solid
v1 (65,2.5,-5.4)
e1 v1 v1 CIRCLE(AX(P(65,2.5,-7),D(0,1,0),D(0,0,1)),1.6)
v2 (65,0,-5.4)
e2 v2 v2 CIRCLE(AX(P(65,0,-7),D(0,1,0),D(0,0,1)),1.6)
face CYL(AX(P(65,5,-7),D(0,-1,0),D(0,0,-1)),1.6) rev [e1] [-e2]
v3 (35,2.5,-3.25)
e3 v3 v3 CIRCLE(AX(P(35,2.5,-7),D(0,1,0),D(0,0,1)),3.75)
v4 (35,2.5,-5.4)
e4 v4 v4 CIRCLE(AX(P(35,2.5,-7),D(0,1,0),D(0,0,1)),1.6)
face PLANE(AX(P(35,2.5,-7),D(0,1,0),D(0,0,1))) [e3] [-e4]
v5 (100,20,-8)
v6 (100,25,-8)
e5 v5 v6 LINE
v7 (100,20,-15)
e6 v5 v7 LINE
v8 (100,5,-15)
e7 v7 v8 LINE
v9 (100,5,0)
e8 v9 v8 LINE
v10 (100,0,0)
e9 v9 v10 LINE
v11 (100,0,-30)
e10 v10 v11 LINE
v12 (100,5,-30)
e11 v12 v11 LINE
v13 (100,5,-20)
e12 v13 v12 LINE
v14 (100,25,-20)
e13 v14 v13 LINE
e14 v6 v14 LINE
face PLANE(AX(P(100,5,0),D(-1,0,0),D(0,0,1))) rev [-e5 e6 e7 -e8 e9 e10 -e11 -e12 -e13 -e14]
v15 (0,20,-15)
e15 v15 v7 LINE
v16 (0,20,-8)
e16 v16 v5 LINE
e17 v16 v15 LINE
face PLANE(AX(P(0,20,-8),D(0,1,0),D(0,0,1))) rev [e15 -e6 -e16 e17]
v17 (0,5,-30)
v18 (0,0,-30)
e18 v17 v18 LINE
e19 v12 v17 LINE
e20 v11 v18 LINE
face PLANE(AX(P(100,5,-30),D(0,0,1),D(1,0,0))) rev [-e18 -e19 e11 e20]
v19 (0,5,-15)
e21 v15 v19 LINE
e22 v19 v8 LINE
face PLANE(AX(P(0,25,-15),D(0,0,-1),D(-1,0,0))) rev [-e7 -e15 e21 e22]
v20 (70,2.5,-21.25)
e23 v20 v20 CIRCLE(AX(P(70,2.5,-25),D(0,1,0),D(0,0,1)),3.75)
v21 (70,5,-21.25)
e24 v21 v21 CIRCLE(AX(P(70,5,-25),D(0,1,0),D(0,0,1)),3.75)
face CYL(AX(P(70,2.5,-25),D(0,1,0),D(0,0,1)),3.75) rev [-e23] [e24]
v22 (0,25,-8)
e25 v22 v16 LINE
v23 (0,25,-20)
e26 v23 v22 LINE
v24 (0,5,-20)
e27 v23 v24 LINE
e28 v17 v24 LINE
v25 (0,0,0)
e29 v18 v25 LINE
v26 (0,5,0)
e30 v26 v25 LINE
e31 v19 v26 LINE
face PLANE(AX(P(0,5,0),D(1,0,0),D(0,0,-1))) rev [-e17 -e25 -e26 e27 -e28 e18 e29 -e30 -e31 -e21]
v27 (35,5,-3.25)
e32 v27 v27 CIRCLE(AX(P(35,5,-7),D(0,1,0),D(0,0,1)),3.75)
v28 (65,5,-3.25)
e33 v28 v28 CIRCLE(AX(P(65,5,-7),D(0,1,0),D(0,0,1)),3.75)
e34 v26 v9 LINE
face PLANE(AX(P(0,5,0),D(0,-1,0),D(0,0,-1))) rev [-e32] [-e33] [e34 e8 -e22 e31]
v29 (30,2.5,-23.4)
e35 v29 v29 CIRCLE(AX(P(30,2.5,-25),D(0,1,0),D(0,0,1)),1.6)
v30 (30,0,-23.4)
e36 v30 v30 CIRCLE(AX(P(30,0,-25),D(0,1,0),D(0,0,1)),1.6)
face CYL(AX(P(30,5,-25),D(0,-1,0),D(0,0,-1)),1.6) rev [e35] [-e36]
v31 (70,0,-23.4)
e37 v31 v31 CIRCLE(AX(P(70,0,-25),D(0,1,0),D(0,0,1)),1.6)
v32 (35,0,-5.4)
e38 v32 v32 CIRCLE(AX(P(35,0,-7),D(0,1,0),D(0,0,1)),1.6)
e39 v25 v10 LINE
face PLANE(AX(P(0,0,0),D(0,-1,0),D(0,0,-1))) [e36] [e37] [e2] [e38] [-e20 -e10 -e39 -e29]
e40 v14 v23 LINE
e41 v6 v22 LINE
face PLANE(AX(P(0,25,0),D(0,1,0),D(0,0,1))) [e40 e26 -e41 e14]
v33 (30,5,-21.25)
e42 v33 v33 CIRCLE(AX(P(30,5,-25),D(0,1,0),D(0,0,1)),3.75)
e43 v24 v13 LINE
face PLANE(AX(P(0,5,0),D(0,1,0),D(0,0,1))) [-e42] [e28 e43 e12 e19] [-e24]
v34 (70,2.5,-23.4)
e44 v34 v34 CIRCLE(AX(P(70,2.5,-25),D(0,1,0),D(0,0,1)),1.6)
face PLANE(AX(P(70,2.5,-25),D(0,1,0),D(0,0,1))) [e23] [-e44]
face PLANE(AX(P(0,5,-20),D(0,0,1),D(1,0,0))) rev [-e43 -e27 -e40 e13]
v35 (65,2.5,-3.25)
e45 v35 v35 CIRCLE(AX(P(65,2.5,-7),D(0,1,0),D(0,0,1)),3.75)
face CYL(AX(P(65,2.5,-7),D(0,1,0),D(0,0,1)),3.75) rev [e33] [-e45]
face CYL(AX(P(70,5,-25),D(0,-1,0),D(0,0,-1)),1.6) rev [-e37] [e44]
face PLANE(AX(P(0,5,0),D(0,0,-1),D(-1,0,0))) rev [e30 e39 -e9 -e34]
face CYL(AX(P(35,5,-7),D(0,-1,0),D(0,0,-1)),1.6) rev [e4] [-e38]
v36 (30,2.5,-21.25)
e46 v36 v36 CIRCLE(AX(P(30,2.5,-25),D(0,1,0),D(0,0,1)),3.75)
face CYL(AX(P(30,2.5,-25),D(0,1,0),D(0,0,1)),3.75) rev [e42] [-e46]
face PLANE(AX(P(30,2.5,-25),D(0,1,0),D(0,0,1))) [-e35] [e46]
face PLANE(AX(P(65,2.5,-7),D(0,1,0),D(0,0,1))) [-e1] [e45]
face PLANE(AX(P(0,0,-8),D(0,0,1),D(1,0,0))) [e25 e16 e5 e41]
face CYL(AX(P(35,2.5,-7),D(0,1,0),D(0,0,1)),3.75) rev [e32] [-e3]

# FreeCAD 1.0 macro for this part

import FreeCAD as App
import Part
import Sketcher

V = App.Vector

doc = App.newDocument("Part")
params = doc.addObject("Spreadsheet::Sheet", "Params")
for row, (alias, value) in enumerate([
    ("sketch1_diameter", "3.2 mm"),
    ("sketch1_width", "100 mm"),
    ("sketch1_height", "20 mm"),
    ("pad1_length", "5 mm"),
    ("sketch2_width", "100 mm"),
    ("sketch2_height", "5 mm"),
    ("pad2_length", "20 mm"),
    ("sketch3_width", "100 mm"),
    ("sketch3_height", "5 mm"),
    ("pad3_length", "7 mm"),
    ("sketch4_diameter", "3.2 mm"),
    ("sketch4_width", "100 mm"),
    ("sketch4_height", "10 mm"),
    ("pad4_length", "5 mm"),
    ("sketch5_diameter", "7.5 mm"),
    ("pocket1_length", "2.5 mm"),
], start=1):
    params.set(f"A{row}", alias)
    params.set(f"B{row}", "=" + value)
    params.setAlias(f"B{row}", alias)

body = doc.addObject("PartDesign::Body", "Body")

# Sketch on XZ plane
sketch1 = body.newObject("Sketcher::SketchObject", "Sketch")
sketch1.AttachmentSupport = (doc.getObject("XZ_Plane"), [""])
sketch1.MapMode = "FlatFace"
sketch1.addGeometry([
    Part.LineSegment(V(0, -20, 0), V(0, 0, 0)),  # 0
    Part.LineSegment(V(0, 0, 0), V(100, 0, 0)),  # 1
    Part.LineSegment(V(100, 0, 0), V(100, -20, 0)),  # 2
    Part.LineSegment(V(100, -20, 0), V(0, -20, 0)),  # 3
    Part.Circle(V(35, -7, 0), V(0, 0, 1), 1.6),  # 4
    Part.Circle(V(65, -7, 0), V(0, 0, 1), 1.6),  # 5
], False)
sketch1.addConstraint([
    Sketcher.Constraint("Coincident", 0, 2, 1, 1),
    Sketcher.Constraint("Coincident", 1, 2, 2, 1),
    Sketcher.Constraint("Coincident", 2, 2, 3, 1),
    Sketcher.Constraint("Coincident", 3, 2, 0, 1),
    Sketcher.Constraint("Vertical", 0),
    Sketcher.Constraint("Horizontal", 1),
    Sketcher.Constraint("Vertical", 2),
    Sketcher.Constraint("Horizontal", 3),
    Sketcher.Constraint("Coincident", 0, 2, -1, 1),
    Sketcher.Constraint("Equal", 4, 5),
    Sketcher.Constraint("Horizontal", 4, 3, 5, 3),
    Sketcher.Constraint("Diameter", 4, 3.2),
    Sketcher.Constraint("DistanceX", 1, 1, 1, 2, 100.0),
    Sketcher.Constraint("DistanceY", 0, 1, 0, 2, 20.0),
    Sketcher.Constraint("DistanceX", -1, 1, 4, 3, 35.0),
    Sketcher.Constraint("DistanceY", 4, 3, -1, 1, 7.0),
    Sketcher.Constraint("DistanceX", -1, 1, 5, 3, 65.0),
])
sketch1.setExpression("Constraints[11]", "Params.sketch1_diameter")
sketch1.setExpression("Constraints[12]", "Params.sketch1_width")
sketch1.setExpression("Constraints[13]", "Params.sketch1_height")
pad1 = body.newObject("PartDesign::Pad", "Pad")
pad1.Profile = sketch1
pad1.setExpression("Length", "Params.pad1_length")
pad1.Reversed = True

# Sketch on XZ plane
sketch2 = body.newObject("Sketcher::SketchObject", "Sketch001")
sketch2.AttachmentSupport = (doc.getObject("XZ_Plane"), [""])
sketch2.MapMode = "FlatFace"
sketch2.AttachmentOffset = App.Placement(V(0, 0, -5), App.Rotation())
sketch2.addGeometry([
    Part.LineSegment(V(0, -20, 0), V(0, -15, 0)),
    Part.LineSegment(V(0, -15, 0), V(100, -15, 0)),
    Part.LineSegment(V(100, -15, 0), V(100, -20, 0)),
    Part.LineSegment(V(100, -20, 0), V(0, -20, 0)),
], False)
sketch2.addConstraint([
    Sketcher.Constraint("Coincident", 0, 2, 1, 1),
    Sketcher.Constraint("Coincident", 1, 2, 2, 1),
    Sketcher.Constraint("Coincident", 2, 2, 3, 1),
    Sketcher.Constraint("Coincident", 3, 2, 0, 1),
    Sketcher.Constraint("Vertical", 0),
    Sketcher.Constraint("Horizontal", 1),
    Sketcher.Constraint("Vertical", 2),
    Sketcher.Constraint("Horizontal", 3),
    Sketcher.Constraint("PointOnObject", 0, 2, -2),
    Sketcher.Constraint("DistanceX", 1, 1, 1, 2, 100.0),
    Sketcher.Constraint("DistanceY", 0, 1, 0, 2, 5.0),
    Sketcher.Constraint("DistanceY", 0, 2, -1, 1, 15.0),
])
sketch2.setExpression("Constraints[9]", "Params.sketch2_width")
sketch2.setExpression("Constraints[10]", "Params.sketch2_height")
pad2 = body.newObject("PartDesign::Pad", "Pad001")
pad2.Profile = sketch2
pad2.setExpression("Length", "Params.pad2_length")
pad2.Reversed = True

# Sketch on XY plane
sketch3 = body.newObject("Sketcher::SketchObject", "Sketch002")
sketch3.AttachmentSupport = (doc.getObject("XY_Plane"), [""])
sketch3.MapMode = "FlatFace"
sketch3.AttachmentOffset = App.Placement(V(0, 0, -15), App.Rotation())
sketch3.addGeometry([
    Part.LineSegment(V(0, 25, 0), V(0, 20, 0)),
    Part.LineSegment(V(0, 20, 0), V(100, 20, 0)),
    Part.LineSegment(V(100, 20, 0), V(100, 25, 0)),
    Part.LineSegment(V(100, 25, 0), V(0, 25, 0)),
], False)
sketch3.addConstraint([
    Sketcher.Constraint("Coincident", 0, 2, 1, 1),
    Sketcher.Constraint("Coincident", 1, 2, 2, 1),
    Sketcher.Constraint("Coincident", 2, 2, 3, 1),
    Sketcher.Constraint("Coincident", 3, 2, 0, 1),
    Sketcher.Constraint("Vertical", 0),
    Sketcher.Constraint("Horizontal", 1),
    Sketcher.Constraint("Vertical", 2),
    Sketcher.Constraint("Horizontal", 3),
    Sketcher.Constraint("PointOnObject", 0, 2, -2),
    Sketcher.Constraint("DistanceX", 1, 1, 1, 2, 100.0),
    Sketcher.Constraint("DistanceY", 0, 2, 0, 1, 5.0),
    Sketcher.Constraint("DistanceY", -1, 1, 0, 2, 20.0),
])
sketch3.setExpression("Constraints[9]", "Params.sketch3_width")
sketch3.setExpression("Constraints[10]", "Params.sketch3_height")
pad3 = body.newObject("PartDesign::Pad", "Pad002")
pad3.Profile = sketch3
pad3.setExpression("Length", "Params.pad3_length")

# Sketch on XZ plane
sketch4 = body.newObject("Sketcher::SketchObject", "Sketch003")
sketch4.AttachmentSupport = (doc.getObject("XZ_Plane"), [""])
sketch4.MapMode = "FlatFace"
sketch4.addGeometry([
    Part.LineSegment(V(0, -30, 0), V(0, -20, 0)),  # 0
    Part.LineSegment(V(0, -20, 0), V(100, -20, 0)),  # 1
    Part.LineSegment(V(100, -20, 0), V(100, -30, 0)),  # 2
    Part.LineSegment(V(100, -30, 0), V(0, -30, 0)),  # 3
    Part.Circle(V(30, -25, 0), V(0, 0, 1), 1.6),  # 4
    Part.Circle(V(70, -25, 0), V(0, 0, 1), 1.6),  # 5
], False)
sketch4.addConstraint([
    Sketcher.Constraint("Coincident", 0, 2, 1, 1),
    Sketcher.Constraint("Coincident", 1, 2, 2, 1),
    Sketcher.Constraint("Coincident", 2, 2, 3, 1),
    Sketcher.Constraint("Coincident", 3, 2, 0, 1),
    Sketcher.Constraint("Vertical", 0),
    Sketcher.Constraint("Horizontal", 1),
    Sketcher.Constraint("Vertical", 2),
    Sketcher.Constraint("Horizontal", 3),
    Sketcher.Constraint("Equal", 4, 5),
    Sketcher.Constraint("PointOnObject", 0, 2, -2),
    Sketcher.Constraint("Horizontal", 4, 3, 5, 3),
    Sketcher.Constraint("Diameter", 4, 3.2),
    Sketcher.Constraint("DistanceX", 1, 1, 1, 2, 100.0),
    Sketcher.Constraint("DistanceY", 0, 1, 0, 2, 10.0),
    Sketcher.Constraint("DistanceX", -1, 1, 4, 3, 30.0),
    Sketcher.Constraint("DistanceY", 4, 3, -1, 1, 25.0),
    Sketcher.Constraint("DistanceX", -1, 1, 5, 3, 70.0),
    Sketcher.Constraint("DistanceY", 0, 2, -1, 1, 20.0),
])
sketch4.setExpression("Constraints[11]", "Params.sketch4_diameter")
sketch4.setExpression("Constraints[12]", "Params.sketch4_width")
sketch4.setExpression("Constraints[13]", "Params.sketch4_height")
pad4 = body.newObject("PartDesign::Pad", "Pad003")
pad4.Profile = sketch4
pad4.setExpression("Length", "Params.pad4_length")
pad4.Reversed = True

# Sketch on XZ plane
sketch5 = body.newObject("Sketcher::SketchObject", "Sketch004")
sketch5.AttachmentSupport = (doc.getObject("XZ_Plane"), [""])
sketch5.MapMode = "FlatFace"
sketch5.AttachmentOffset = App.Placement(V(0, 0, -5), App.Rotation())
sketch5.addGeometry([
    Part.Circle(V(35, -7, 0), V(0, 0, 1), 3.8),
    Part.Circle(V(65, -7, 0), V(0, 0, 1), 3.8),
    Part.Circle(V(30, -25, 0), V(0, 0, 1), 3.8),
    Part.Circle(V(70, -25, 0), V(0, 0, 1), 3.8),
], False)
sketch5.addConstraint([
    Sketcher.Constraint("Equal", 0, 1),
    Sketcher.Constraint("Equal", 1, 2),
    Sketcher.Constraint("Equal", 2, 3),
    Sketcher.Constraint("Horizontal", 0, 3, 1, 3),
    Sketcher.Constraint("Horizontal", 2, 3, 3, 3),
    Sketcher.Constraint("Diameter", 0, 7.5),
    Sketcher.Constraint("DistanceX", -1, 1, 0, 3, 35.0),
    Sketcher.Constraint("DistanceY", 0, 3, -1, 1, 7.0),
    Sketcher.Constraint("DistanceX", -1, 1, 1, 3, 65.0),
    Sketcher.Constraint("DistanceX", -1, 1, 2, 3, 30.0),
    Sketcher.Constraint("DistanceY", 2, 3, -1, 1, 25.0),
    Sketcher.Constraint("DistanceX", -1, 1, 3, 3, 70.0),
])
sketch5.setExpression("Constraints[5]", "Params.sketch5_diameter")
pocket1 = body.newObject("PartDesign::Pocket", "Pocket")
pocket1.Profile = sketch5
pocket1.setExpression("Length", "Params.pocket1_length")
pocket1.Reversed = True

doc.recompute()
